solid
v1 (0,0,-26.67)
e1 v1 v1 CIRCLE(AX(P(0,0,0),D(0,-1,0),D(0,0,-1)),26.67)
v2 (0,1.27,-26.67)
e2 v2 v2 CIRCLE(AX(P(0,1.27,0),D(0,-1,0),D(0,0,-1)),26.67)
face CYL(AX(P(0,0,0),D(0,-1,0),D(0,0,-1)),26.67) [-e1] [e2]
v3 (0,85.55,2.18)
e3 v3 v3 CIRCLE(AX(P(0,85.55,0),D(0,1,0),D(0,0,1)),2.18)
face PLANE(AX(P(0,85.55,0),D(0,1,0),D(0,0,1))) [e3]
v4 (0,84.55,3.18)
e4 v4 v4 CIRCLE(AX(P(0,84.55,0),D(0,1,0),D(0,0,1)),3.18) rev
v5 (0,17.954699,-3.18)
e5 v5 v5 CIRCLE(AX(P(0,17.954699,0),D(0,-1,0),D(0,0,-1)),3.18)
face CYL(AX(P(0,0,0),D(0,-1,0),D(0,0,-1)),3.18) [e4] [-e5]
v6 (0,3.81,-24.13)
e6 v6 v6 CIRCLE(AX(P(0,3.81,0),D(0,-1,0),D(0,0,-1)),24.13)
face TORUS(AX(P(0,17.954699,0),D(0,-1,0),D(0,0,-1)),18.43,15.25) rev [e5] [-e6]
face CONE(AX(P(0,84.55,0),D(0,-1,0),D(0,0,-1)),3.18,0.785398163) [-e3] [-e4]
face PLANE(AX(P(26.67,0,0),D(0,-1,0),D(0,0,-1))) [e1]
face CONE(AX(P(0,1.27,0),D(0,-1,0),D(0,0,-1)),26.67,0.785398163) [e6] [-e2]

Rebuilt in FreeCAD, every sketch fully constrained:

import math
import FreeCAD as App
import Part
import Sketcher
Q = App.Units.Quantity


def edges_at(feature, points):
    """Names of the edges that pass closest to the given points."""
    edges = feature.Shape.Edges
    near = lambda p: min(range(len(edges)), key=lambda i: edges[i].distToShape(Part.Vertex(*p))[0])
    return sorted({f"Edge{near(p) + 1}" for p in points})

doc = App.newDocument("Part")
body = doc.addObject("PartDesign::Body", "Body")

# Sketch on XY plane
sketch1 = body.newObject("Sketcher::SketchObject", "Sketch")
sketch1.AttachmentSupport = (doc.getObject("XY_Plane"), [""])
sketch1.MapMode = "FlatFace"
sketch1.addGeometry(Part.LineSegment(App.Vector(0, 85.55, 0), App.Vector(0, 0, 0)), False)
sketch1.addGeometry(Part.LineSegment(App.Vector(0, 0, 0), App.Vector(26.67, 0, 0)), False)
sketch1.addGeometry(Part.LineSegment(App.Vector(26.67, 0, 0), App.Vector(26.67, 1.27, 0)), False)
sketch1.addGeometry(Part.LineSegment(App.Vector(26.67, 1.27, 0), App.Vector(24.13, 3.81, 0)), False)
sketch1.addGeometry(Part.ArcOfCircle(Part.Circle(App.Vector(18.43, 17.954699, 0), App.Vector(0, 0, 1), 15.25), math.radians(180), math.radians(291.948342)), False)
sketch1.addGeometry(Part.LineSegment(App.Vector(3.18, 17.954699, 0), App.Vector(3.18, 85.55, 0)), False)
sketch1.addGeometry(Part.LineSegment(App.Vector(3.18, 85.55, 0), App.Vector(0, 85.55, 0)), False)
sketch1.addConstraint(Sketcher.Constraint("Coincident", 0, 2, 1, 1))
sketch1.addConstraint(Sketcher.Constraint("Coincident", 1, 2, 2, 1))
sketch1.addConstraint(Sketcher.Constraint("Coincident", 2, 2, 3, 1))
sketch1.addConstraint(Sketcher.Constraint("Coincident", 3, 2, 4, 2))
sketch1.addConstraint(Sketcher.Constraint("Tangent", 4, 1, 5, 1))
sketch1.addConstraint(Sketcher.Constraint("Coincident", 5, 2, 6, 1))
sketch1.addConstraint(Sketcher.Constraint("Coincident", 6, 2, 0, 1))
sketch1.addConstraint(Sketcher.Constraint("Vertical", 0))
sketch1.addConstraint(Sketcher.Constraint("Horizontal", 1))
sketch1.addConstraint(Sketcher.Constraint("Vertical", 2))
sketch1.addConstraint(Sketcher.Constraint("Vertical", 5))
sketch1.addConstraint(Sketcher.Constraint("Horizontal", 6))
sketch1.addConstraint(Sketcher.Constraint("Coincident", 0, 2, -1, 1))
sketch1.addConstraint(Sketcher.Constraint("Angle", 3, Q("135 deg")))
sketch1.addConstraint(Sketcher.Constraint("Radius", 4, 15.25))
sketch1.addConstraint(Sketcher.Constraint("DistanceX", 1, 1, 1, 2, 26.67))
sketch1.addConstraint(Sketcher.Constraint("DistanceX", 6, 2, 6, 1, 3.18))
sketch1.addConstraint(Sketcher.Constraint("DistanceY", 0, 2, 0, 1, 85.55))
sketch1.addConstraint(Sketcher.Constraint("DistanceY", 2, 1, 2, 2, 1.27))
sketch1.addConstraint(Sketcher.Constraint("DistanceX", 4, 3, 3, 2, 5.7))
revolution = body.newObject("PartDesign::Revolution", "Revolution")
revolution.Profile = sketch1
revolution.ReferenceAxis = (sketch1, ["V_Axis"])
revolution.Angle = 360
doc.recompute()

chamfer = body.newObject("PartDesign::Chamfer", "Chamfer")
chamfer.Base = (revolution, edges_at(revolution, [(-3.18, 85.55, 0)]))
chamfer.Size = 1

doc.recompute()
